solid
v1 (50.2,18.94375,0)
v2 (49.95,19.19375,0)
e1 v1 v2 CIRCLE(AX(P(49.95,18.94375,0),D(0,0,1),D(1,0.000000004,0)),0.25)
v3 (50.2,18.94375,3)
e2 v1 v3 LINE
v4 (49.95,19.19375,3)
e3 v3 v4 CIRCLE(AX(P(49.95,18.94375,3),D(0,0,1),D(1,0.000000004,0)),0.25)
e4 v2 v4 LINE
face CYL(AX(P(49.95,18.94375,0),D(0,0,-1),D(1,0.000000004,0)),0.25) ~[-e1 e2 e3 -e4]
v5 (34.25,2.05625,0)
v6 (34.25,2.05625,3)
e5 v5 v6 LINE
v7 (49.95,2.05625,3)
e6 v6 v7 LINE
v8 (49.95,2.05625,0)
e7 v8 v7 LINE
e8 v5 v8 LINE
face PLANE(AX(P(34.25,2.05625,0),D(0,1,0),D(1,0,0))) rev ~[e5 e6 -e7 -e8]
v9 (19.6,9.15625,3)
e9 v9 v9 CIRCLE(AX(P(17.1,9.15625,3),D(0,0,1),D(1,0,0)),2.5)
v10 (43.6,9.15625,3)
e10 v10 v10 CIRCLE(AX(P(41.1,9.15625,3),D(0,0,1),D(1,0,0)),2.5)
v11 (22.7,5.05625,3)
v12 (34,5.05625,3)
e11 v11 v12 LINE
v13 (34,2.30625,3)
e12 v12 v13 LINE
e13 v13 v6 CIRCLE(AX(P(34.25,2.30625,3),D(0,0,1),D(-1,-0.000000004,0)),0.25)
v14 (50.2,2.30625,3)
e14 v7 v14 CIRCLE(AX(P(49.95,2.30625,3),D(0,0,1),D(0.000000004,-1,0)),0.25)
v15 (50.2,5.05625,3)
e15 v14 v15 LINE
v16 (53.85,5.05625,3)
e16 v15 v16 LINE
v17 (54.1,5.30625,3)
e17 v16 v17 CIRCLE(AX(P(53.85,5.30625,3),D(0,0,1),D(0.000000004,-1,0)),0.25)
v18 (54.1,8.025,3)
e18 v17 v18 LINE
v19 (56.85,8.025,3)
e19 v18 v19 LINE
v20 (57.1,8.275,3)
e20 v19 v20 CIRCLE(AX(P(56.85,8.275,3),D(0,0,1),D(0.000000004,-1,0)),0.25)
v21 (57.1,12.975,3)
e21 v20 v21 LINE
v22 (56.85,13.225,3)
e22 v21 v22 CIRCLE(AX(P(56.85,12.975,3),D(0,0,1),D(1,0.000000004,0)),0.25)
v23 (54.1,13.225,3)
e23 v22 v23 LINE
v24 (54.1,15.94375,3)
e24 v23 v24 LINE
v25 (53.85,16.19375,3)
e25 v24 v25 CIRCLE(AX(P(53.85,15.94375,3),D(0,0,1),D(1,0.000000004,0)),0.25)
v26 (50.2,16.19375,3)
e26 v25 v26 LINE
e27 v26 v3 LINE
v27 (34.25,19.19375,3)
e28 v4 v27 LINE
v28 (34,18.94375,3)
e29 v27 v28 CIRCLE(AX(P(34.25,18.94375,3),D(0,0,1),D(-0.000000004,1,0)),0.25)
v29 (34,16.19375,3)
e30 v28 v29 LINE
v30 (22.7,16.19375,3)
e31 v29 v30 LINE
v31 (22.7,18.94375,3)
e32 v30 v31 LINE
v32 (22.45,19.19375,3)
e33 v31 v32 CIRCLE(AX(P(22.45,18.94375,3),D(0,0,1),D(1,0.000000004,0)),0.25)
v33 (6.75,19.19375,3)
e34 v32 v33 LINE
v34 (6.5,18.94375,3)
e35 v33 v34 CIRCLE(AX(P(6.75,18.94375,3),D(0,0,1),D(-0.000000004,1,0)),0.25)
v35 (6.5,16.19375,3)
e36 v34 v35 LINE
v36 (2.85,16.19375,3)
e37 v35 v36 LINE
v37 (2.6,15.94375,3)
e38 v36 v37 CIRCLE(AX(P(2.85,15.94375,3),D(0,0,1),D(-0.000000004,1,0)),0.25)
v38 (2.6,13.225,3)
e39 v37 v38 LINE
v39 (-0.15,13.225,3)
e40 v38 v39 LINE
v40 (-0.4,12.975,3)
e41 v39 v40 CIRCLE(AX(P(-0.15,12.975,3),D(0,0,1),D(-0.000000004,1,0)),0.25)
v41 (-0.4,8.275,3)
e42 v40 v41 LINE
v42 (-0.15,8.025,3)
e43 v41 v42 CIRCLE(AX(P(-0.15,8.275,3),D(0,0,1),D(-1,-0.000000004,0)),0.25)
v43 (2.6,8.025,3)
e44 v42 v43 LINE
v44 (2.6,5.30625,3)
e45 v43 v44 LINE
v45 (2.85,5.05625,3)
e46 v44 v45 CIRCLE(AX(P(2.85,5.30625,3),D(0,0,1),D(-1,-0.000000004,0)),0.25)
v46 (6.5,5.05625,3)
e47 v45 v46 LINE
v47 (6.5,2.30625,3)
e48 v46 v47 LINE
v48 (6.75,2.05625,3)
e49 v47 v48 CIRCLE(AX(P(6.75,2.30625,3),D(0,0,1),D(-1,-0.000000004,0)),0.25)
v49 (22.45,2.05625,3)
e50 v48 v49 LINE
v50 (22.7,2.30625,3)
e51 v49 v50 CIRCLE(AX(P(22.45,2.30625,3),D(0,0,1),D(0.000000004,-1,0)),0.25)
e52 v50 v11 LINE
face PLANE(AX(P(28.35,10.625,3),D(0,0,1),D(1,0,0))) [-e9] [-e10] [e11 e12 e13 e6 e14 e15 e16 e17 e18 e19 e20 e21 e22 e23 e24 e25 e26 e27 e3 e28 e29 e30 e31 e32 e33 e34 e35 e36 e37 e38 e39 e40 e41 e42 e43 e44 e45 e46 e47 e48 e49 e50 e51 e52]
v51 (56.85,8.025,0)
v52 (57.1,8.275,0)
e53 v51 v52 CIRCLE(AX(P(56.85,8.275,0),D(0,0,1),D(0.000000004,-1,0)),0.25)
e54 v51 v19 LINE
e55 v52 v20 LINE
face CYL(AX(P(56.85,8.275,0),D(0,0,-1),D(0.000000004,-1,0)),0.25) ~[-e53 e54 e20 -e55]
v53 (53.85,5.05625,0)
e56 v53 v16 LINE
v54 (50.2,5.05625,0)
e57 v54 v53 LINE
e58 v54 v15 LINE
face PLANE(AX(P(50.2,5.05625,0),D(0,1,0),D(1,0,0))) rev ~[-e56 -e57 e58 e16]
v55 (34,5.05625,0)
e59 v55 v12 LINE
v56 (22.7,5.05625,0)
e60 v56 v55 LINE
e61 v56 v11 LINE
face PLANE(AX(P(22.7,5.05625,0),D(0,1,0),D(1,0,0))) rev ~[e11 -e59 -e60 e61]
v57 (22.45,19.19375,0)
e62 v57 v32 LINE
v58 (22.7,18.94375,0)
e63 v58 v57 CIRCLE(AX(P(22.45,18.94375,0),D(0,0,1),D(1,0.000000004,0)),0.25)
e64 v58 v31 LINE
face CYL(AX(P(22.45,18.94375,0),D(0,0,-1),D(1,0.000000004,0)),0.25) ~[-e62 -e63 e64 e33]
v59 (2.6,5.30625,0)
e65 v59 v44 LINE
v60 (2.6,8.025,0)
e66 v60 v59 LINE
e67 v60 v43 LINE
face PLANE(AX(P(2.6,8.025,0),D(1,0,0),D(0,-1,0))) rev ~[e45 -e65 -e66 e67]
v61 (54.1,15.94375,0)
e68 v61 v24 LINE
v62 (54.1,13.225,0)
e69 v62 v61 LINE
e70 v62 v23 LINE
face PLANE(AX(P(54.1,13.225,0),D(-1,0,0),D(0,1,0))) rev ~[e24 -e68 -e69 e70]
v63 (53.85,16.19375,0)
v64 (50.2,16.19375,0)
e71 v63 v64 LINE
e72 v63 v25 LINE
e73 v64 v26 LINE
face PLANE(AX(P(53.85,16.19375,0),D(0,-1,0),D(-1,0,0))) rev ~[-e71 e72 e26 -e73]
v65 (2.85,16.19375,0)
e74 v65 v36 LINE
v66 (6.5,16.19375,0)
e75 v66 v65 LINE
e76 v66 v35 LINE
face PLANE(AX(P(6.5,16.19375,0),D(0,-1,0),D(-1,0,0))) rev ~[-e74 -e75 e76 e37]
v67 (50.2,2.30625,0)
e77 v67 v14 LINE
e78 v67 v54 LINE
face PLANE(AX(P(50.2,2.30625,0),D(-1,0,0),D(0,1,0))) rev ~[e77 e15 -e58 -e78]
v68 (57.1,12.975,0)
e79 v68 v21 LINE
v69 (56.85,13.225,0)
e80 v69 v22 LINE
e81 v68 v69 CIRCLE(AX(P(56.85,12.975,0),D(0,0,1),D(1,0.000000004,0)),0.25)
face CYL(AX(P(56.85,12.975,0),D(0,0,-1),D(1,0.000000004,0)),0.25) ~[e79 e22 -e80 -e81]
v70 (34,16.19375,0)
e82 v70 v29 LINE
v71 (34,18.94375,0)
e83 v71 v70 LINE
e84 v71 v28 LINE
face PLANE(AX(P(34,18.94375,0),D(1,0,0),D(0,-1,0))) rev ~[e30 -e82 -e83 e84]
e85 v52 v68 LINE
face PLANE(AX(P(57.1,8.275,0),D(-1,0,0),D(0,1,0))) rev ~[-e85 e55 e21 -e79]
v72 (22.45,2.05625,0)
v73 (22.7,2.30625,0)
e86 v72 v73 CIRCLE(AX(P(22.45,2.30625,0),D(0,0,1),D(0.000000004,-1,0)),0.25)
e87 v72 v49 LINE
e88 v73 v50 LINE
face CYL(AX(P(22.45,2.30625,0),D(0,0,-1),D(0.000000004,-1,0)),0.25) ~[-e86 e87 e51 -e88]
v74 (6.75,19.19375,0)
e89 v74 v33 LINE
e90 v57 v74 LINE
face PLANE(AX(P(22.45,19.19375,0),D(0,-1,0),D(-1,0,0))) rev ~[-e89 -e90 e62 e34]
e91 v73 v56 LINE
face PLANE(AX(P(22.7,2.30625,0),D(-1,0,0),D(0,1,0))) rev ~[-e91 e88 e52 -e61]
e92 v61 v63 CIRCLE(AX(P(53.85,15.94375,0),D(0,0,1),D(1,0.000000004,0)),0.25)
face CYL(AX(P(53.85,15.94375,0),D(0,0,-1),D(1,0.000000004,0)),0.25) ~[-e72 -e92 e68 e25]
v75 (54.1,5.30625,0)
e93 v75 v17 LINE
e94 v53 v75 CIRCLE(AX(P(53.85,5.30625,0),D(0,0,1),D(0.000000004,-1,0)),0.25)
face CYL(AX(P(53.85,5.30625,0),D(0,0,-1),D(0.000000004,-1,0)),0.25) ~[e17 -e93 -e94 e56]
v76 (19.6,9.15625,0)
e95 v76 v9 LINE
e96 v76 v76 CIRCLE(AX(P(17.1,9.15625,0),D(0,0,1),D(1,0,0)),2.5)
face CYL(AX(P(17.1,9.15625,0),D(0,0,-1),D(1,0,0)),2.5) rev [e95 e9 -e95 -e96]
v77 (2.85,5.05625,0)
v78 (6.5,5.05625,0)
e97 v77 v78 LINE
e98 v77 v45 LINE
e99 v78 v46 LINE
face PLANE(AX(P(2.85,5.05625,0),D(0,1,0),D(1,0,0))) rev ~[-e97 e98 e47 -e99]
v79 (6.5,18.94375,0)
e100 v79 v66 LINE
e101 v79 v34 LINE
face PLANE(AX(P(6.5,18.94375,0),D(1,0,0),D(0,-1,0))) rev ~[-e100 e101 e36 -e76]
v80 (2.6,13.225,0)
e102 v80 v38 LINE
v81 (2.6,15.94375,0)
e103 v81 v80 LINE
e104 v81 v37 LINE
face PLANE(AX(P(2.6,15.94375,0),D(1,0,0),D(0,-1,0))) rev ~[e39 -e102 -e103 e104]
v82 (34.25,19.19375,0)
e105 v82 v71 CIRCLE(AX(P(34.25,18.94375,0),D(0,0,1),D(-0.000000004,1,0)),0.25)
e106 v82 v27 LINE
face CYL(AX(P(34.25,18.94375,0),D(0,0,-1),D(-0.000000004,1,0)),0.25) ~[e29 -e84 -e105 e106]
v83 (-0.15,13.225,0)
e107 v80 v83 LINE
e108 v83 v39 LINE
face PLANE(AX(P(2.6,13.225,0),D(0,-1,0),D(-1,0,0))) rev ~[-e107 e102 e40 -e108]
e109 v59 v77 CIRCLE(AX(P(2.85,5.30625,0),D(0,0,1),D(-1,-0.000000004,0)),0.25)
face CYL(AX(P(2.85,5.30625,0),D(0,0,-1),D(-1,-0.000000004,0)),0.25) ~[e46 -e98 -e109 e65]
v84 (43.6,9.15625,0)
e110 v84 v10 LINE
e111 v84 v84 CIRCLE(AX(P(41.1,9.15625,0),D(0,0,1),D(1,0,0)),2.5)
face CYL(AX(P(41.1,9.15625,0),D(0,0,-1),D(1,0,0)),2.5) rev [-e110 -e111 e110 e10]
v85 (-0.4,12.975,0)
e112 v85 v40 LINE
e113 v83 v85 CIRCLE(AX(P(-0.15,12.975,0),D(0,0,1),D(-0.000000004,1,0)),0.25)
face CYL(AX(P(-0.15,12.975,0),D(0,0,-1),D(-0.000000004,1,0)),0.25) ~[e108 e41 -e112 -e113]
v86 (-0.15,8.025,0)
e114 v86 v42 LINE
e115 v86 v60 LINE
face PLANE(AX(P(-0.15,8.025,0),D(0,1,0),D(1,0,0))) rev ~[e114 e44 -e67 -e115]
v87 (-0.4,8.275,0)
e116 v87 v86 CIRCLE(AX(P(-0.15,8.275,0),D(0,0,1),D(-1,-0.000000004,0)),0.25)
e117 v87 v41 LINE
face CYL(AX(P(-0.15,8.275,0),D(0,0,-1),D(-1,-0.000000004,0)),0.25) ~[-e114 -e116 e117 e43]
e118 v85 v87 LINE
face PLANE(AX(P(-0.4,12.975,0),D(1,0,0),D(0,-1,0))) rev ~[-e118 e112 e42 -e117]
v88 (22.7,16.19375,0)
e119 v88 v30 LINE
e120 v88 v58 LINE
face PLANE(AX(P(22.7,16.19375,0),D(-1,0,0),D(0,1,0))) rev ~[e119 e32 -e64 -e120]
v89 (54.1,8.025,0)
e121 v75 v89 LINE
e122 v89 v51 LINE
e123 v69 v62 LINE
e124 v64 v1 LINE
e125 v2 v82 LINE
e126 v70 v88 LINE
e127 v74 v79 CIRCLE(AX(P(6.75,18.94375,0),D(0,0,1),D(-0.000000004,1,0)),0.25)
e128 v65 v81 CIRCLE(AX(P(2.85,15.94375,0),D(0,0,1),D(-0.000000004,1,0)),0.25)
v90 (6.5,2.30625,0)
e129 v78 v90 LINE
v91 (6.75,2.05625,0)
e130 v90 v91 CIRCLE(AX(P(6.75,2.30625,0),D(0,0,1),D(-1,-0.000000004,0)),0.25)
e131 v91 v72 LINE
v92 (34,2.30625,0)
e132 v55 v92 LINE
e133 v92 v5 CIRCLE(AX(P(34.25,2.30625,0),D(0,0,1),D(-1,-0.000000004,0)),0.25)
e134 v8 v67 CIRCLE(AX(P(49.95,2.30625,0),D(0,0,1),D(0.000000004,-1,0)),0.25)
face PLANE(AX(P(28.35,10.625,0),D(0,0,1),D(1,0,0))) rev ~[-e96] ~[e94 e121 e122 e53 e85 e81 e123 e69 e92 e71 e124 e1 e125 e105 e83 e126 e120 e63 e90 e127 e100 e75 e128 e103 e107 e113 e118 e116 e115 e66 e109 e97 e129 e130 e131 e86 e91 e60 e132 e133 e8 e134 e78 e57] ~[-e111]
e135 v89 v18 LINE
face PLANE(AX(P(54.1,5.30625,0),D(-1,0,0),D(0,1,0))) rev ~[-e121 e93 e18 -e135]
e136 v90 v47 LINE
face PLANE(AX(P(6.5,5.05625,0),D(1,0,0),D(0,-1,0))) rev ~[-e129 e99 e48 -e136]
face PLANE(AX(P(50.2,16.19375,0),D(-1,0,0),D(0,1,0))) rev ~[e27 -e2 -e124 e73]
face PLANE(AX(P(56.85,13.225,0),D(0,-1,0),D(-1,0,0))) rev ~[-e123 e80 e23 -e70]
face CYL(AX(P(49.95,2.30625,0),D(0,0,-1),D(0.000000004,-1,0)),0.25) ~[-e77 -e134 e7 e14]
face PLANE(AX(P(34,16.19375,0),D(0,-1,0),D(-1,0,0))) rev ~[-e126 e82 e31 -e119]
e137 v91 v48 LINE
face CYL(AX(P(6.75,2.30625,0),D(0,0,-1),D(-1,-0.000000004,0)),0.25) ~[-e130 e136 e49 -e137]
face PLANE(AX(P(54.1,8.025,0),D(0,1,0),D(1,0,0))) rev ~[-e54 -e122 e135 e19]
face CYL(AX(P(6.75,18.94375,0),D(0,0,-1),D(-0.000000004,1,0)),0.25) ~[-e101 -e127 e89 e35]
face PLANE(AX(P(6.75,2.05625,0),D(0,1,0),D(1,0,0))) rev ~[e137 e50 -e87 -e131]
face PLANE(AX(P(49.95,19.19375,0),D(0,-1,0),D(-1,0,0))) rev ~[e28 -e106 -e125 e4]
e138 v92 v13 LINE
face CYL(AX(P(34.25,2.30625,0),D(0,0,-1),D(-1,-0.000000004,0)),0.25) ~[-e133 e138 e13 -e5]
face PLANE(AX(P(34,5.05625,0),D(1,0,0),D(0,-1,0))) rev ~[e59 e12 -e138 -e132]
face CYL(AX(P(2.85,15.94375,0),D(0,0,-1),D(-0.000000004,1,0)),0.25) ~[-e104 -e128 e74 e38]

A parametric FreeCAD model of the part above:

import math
import FreeCAD as App
import Part
import Sketcher
from FreeCAD import Vector
Q = App.Units.Quantity

doc = App.newDocument("Part")
body = doc.addObject("PartDesign::Body", "Body")

# Sketch on XY plane
sketch1 = body.newObject("Sketcher::SketchObject", "Sketch")
sketch1.AttachmentSupport = (doc.getObject("XY_Plane"), [""])
sketch1.MapMode = "FlatFace"
sketch1.addGeometry([
    Part.LineSegment(Vector(34.25, 2.06, 0), Vector(49.95, 2.06, 0)),  # 0
    Part.ArcOfCircle(Part.Circle(Vector(49.95, 2.31, 0), Vector(0, 0, 1), 0.25), math.radians(-90), math.radians(0)),  # 1
    Part.LineSegment(Vector(50.2, 2.31, 0), Vector(50.2, 5.06, 0)),  # 2
    Part.LineSegment(Vector(50.2, 5.06, 0), Vector(53.85, 5.06, 0)),  # 3
    Part.ArcOfCircle(Part.Circle(Vector(53.85, 5.31, 0), Vector(0, 0, 1), 0.25), math.radians(-90), math.radians(0)),  # 4
    Part.LineSegment(Vector(54.1, 5.31, 0), Vector(54.1, 8.03, 0)),  # 5
    Part.LineSegment(Vector(54.1, 8.03, 0), Vector(56.85, 8.03, 0)),  # 6
    Part.ArcOfCircle(Part.Circle(Vector(56.85, 8.28, 0), Vector(0, 0, 1), 0.25), math.radians(-90), math.radians(0)),  # 7
    Part.LineSegment(Vector(57.1, 8.28, 0), Vector(57.1, 12.97, 0)),  # 8
    Part.ArcOfCircle(Part.Circle(Vector(56.85, 12.97, 0), Vector(0, 0, 1), 0.25), math.radians(0), math.radians(90)),  # 9
    Part.LineSegment(Vector(56.85, 13.22, 0), Vector(54.1, 13.22, 0)),  # 10
    Part.LineSegment(Vector(54.1, 13.22, 0), Vector(54.1, 15.94, 0)),  # 11
    Part.ArcOfCircle(Part.Circle(Vector(53.85, 15.94, 0), Vector(0, 0, 1), 0.25), math.radians(0), math.radians(90)),  # 12
    Part.LineSegment(Vector(53.85, 16.19, 0), Vector(50.2, 16.19, 0)),  # 13
    Part.LineSegment(Vector(50.2, 16.19, 0), Vector(50.2, 18.94, 0)),  # 14
    Part.ArcOfCircle(Part.Circle(Vector(49.95, 18.94, 0), Vector(0, 0, 1), 0.25), math.radians(0), math.radians(90)),  # 15
    Part.LineSegment(Vector(49.95, 19.19, 0), Vector(34.25, 19.19, 0)),  # 16
    Part.ArcOfCircle(Part.Circle(Vector(34.25, 18.94, 0), Vector(0, 0, 1), 0.25), math.radians(90), math.radians(180)),  # 17
    Part.LineSegment(Vector(34, 18.94, 0), Vector(34, 16.19, 0)),  # 18
    Part.LineSegment(Vector(34, 16.19, 0), Vector(22.7, 16.19, 0)),  # 19
    Part.LineSegment(Vector(22.7, 16.19, 0), Vector(22.7, 18.94, 0)),  # 20
    Part.ArcOfCircle(Part.Circle(Vector(22.45, 18.94, 0), Vector(0, 0, 1), 0.25), math.radians(0), math.radians(90)),  # 21
    Part.LineSegment(Vector(22.45, 19.19, 0), Vector(6.75, 19.19, 0)),  # 22
    Part.ArcOfCircle(Part.Circle(Vector(6.75, 18.94, 0), Vector(0, 0, 1), 0.25), math.radians(90), math.radians(180)),  # 23
    Part.LineSegment(Vector(6.5, 18.94, 0), Vector(6.5, 16.19, 0)),  # 24
    Part.LineSegment(Vector(6.5, 16.19, 0), Vector(2.85, 16.19, 0)),  # 25
    Part.ArcOfCircle(Part.Circle(Vector(2.85, 15.94, 0), Vector(0, 0, 1), 0.25), math.radians(90), math.radians(180)),  # 26
    Part.LineSegment(Vector(2.6, 15.94, 0), Vector(2.6, 13.22, 0)),  # 27
    Part.LineSegment(Vector(2.6, 13.22, 0), Vector(-0.15, 13.22, 0)),  # 28
    Part.ArcOfCircle(Part.Circle(Vector(-0.15, 12.97, 0), Vector(0, 0, 1), 0.25), math.radians(90), math.radians(180)),  # 29
    Part.LineSegment(Vector(-0.4, 12.97, 0), Vector(-0.4, 8.28, 0)),  # 30
    Part.ArcOfCircle(Part.Circle(Vector(-0.15, 8.28, 0), Vector(0, 0, 1), 0.25), math.radians(-180), math.radians(-90)),  # 31
    Part.LineSegment(Vector(-0.15, 8.03, 0), Vector(2.6, 8.03, 0)),  # 32
    Part.LineSegment(Vector(2.6, 8.03, 0), Vector(2.6, 5.31, 0)),  # 33
    Part.ArcOfCircle(Part.Circle(Vector(2.85, 5.31, 0), Vector(0, 0, 1), 0.25), math.radians(-180), math.radians(-90)),  # 34
    Part.LineSegment(Vector(2.85, 5.06, 0), Vector(6.5, 5.06, 0)),  # 35
    Part.LineSegment(Vector(6.5, 5.06, 0), Vector(6.5, 2.31, 0)),  # 36
    Part.ArcOfCircle(Part.Circle(Vector(6.75, 2.31, 0), Vector(0, 0, 1), 0.25), math.radians(-180), math.radians(-90)),  # 37
    Part.LineSegment(Vector(6.75, 2.06, 0), Vector(22.45, 2.06, 0)),  # 38
    Part.ArcOfCircle(Part.Circle(Vector(22.45, 2.31, 0), Vector(0, 0, 1), 0.25), math.radians(-90), math.radians(0)),  # 39
    Part.LineSegment(Vector(22.7, 2.31, 0), Vector(22.7, 5.06, 0)),  # 40
    Part.LineSegment(Vector(22.7, 5.06, 0), Vector(34, 5.06, 0)),  # 41
    Part.LineSegment(Vector(34, 5.06, 0), Vector(34, 2.31, 0)),  # 42
    Part.ArcOfCircle(Part.Circle(Vector(34.25, 2.31, 0), Vector(0, 0, 1), 0.25), math.radians(-180), math.radians(-90)),  # 43
    Part.Circle(Vector(17.1, 9.16, 0), Vector(0, 0, 1), 2.5),  # 44
    Part.Circle(Vector(41.1, 9.16, 0), Vector(0, 0, 1), 2.5),  # 45
], False)
sketch1.addConstraint([
    Sketcher.Constraint("Tangent", 0, 2, 1, 1),
    Sketcher.Constraint("Tangent", 1, 2, 2, 1),
    Sketcher.Constraint("Coincident", 2, 2, 3, 1),
    Sketcher.Constraint("Tangent", 3, 2, 4, 1),
    Sketcher.Constraint("Tangent", 4, 2, 5, 1),
    Sketcher.Constraint("Coincident", 5, 2, 6, 1),
    Sketcher.Constraint("Tangent", 6, 2, 7, 1),
    Sketcher.Constraint("Tangent", 7, 2, 8, 1),
    Sketcher.Constraint("Tangent", 8, 2, 9, 1),
    Sketcher.Constraint("Tangent", 9, 2, 10, 1),
    Sketcher.Constraint("Coincident", 10, 2, 11, 1),
    Sketcher.Constraint("Tangent", 11, 2, 12, 1),
    Sketcher.Constraint("Tangent", 12, 2, 13, 1),
    Sketcher.Constraint("Coincident", 13, 2, 14, 1),
    Sketcher.Constraint("Tangent", 14, 2, 15, 1),
    Sketcher.Constraint("Tangent", 15, 2, 16, 1),
    Sketcher.Constraint("Tangent", 16, 2, 17, 1),
    Sketcher.Constraint("Tangent", 17, 2, 18, 1),
    Sketcher.Constraint("Coincident", 18, 2, 19, 1),
    Sketcher.Constraint("Coincident", 19, 2, 20, 1),
    Sketcher.Constraint("Tangent", 20, 2, 21, 1),
    Sketcher.Constraint("Tangent", 21, 2, 22, 1),
    Sketcher.Constraint("Tangent", 22, 2, 23, 1),
    Sketcher.Constraint("Tangent", 23, 2, 24, 1),
    Sketcher.Constraint("Coincident", 24, 2, 25, 1),
    Sketcher.Constraint("Tangent", 25, 2, 26, 1),
    Sketcher.Constraint("Tangent", 26, 2, 27, 1),
    Sketcher.Constraint("Coincident", 27, 2, 28, 1),
    Sketcher.Constraint("Tangent", 28, 2, 29, 1),
    Sketcher.Constraint("Tangent", 29, 2, 30, 1),
    Sketcher.Constraint("Tangent", 30, 2, 31, 1),
    Sketcher.Constraint("Tangent", 31, 2, 32, 1),
    Sketcher.Constraint("Coincident", 32, 2, 33, 1),
    Sketcher.Constraint("Tangent", 33, 2, 34, 1),
    Sketcher.Constraint("Tangent", 34, 2, 35, 1),
    Sketcher.Constraint("Coincident", 35, 2, 36, 1),
    Sketcher.Constraint("Tangent", 36, 2, 37, 1),
    Sketcher.Constraint("Tangent", 37, 2, 38, 1),
    Sketcher.Constraint("Tangent", 38, 2, 39, 1),
    Sketcher.Constraint("Tangent", 39, 2, 40, 1),
    Sketcher.Constraint("Coincident", 40, 2, 41, 1),
    Sketcher.Constraint("Coincident", 41, 2, 42, 1),
    Sketcher.Constraint("Tangent", 42, 2, 43, 1),
    Sketcher.Constraint("Tangent", 43, 2, 0, 1),
    Sketcher.Constraint("Horizontal", 0),
    Sketcher.Constraint("Vertical", 2),
    Sketcher.Constraint("Horizontal", 3),
    Sketcher.Constraint("Vertical", 5),
    Sketcher.Constraint("Horizontal", 6),
    Sketcher.Constraint("Vertical", 8),
    Sketcher.Constraint("Horizontal", 10),
    Sketcher.Constraint("Vertical", 11),
    Sketcher.Constraint("Horizontal", 13),
    Sketcher.Constraint("Vertical", 14),
    Sketcher.Constraint("Horizontal", 16),
    Sketcher.Constraint("Vertical", 18),
    Sketcher.Constraint("Horizontal", 19),
    Sketcher.Constraint("Vertical", 20),
    Sketcher.Constraint("Horizontal", 22),
    Sketcher.Constraint("Vertical", 24),
    Sketcher.Constraint("Horizontal", 25),
    Sketcher.Constraint("Vertical", 27),
    Sketcher.Constraint("Horizontal", 28),
    Sketcher.Constraint("Vertical", 30),
    Sketcher.Constraint("Horizontal", 32),
    Sketcher.Constraint("Vertical", 33),
    Sketcher.Constraint("Horizontal", 35),
    Sketcher.Constraint("Vertical", 36),
    Sketcher.Constraint("Horizontal", 38),
    Sketcher.Constraint("Vertical", 40),
    Sketcher.Constraint("Horizontal", 41),
    Sketcher.Constraint("Vertical", 42),
    Sketcher.Constraint("Equal", 1, 4),
    Sketcher.Constraint("Equal", 4, 7),
    Sketcher.Constraint("Equal", 7, 9),
    Sketcher.Constraint("Equal", 9, 12),
    Sketcher.Constraint("Equal", 12, 15),
    Sketcher.Constraint("Equal", 15, 17),
    Sketcher.Constraint("Equal", 17, 21),
    Sketcher.Constraint("Equal", 21, 23),
    Sketcher.Constraint("Equal", 23, 26),
    Sketcher.Constraint("Equal", 26, 29),
    Sketcher.Constraint("Equal", 29, 31),
    Sketcher.Constraint("Equal", 31, 34),
    Sketcher.Constraint("Equal", 34, 37),
    Sketcher.Constraint("Equal", 37, 39),
    Sketcher.Constraint("Equal", 39, 43),
    Sketcher.Constraint("Equal", 44, 45),
    Sketcher.Constraint("Horizontal", 17, 3, 21, 3),
    Sketcher.Constraint("Horizontal", 12, 3, 26, 3),
    Sketcher.Constraint("Horizontal", 9, 3, 29, 3),
    Sketcher.Constraint("Horizontal", 7, 3, 31, 3),
    Sketcher.Constraint("Horizontal", 4, 3, 34, 3),
    Sketcher.Constraint("Horizontal", 1, 3, 37, 3),
    Sketcher.Constraint("Horizontal", 44, 3, 45, 3),
    Sketcher.Constraint("Horizontal", 13, 2, 18, 2),
    Sketcher.Constraint("Horizontal", 35, 2, 40, 2),
    Sketcher.Constraint("Vertical", 4, 3, 12, 3),
    Sketcher.Constraint("Vertical", 1, 3, 15, 3),
    Sketcher.Constraint("Vertical", 26, 3, 34, 3),
    Sketcher.Constraint("Vertical", 23, 3, 37, 3),
    Sketcher.Constraint("Vertical", 21, 3, 39, 3),
    Sketcher.Constraint("Vertical", 17, 3, 43, 3),
    Sketcher.Constraint("Equal", 16, 22),
    Sketcher.Constraint("Equal", 13, 25),
    Sketcher.Constraint("Equal", 10, 28),
    Sketcher.Constraint("Equal", 32, 2),
    Sketcher.Constraint("Equal", 5, 11),
    Sketcher.Constraint("Equal", 2, 14),
    Sketcher.Constraint("Diameter", 44, Q("5 mm")),
    Sketcher.Constraint("Radius", 1, Q("0.25 mm")),
    Sketcher.Constraint("DistanceX", 0, 1, 0, 2, Q("15.7 mm")),
    Sketcher.Constraint("DistanceX", 19, 2, 19, 1, Q("11.3 mm")),
    Sketcher.Constraint("DistanceY", 8, 1, 8, 2, Q("4.7 mm")),
    Sketcher.Constraint("DistanceX", -1, 1, 17, 2, Q("34 mm")),
    Sketcher.Constraint("DistanceX", 3, 1, 3, 2, Q("3.65 mm")),
    Sketcher.Constraint("DistanceX", 6, 1, 6, 2, Q("2.75 mm")),
    Sketcher.Constraint("DistanceX", -1, 1, 44, 3, Q("17.1 mm")),
    Sketcher.Constraint("DistanceX", -1, 1, 45, 3, Q("41.1 mm")),
    Sketcher.Constraint("DistanceY", -1, 1, 7, 3, Q("8.275 mm")),
    Sketcher.Constraint("DistanceY", 5, 1, 5, 2, Q("2.71875 mm")),
    Sketcher.Constraint("DistanceY", -1, 1, 44, 3, Q("9.15625 mm")),
])
pad1 = body.newObject("PartDesign::Pad", "Pad")
pad1.Profile = sketch1
pad1.Length = 3

doc.recompute()
